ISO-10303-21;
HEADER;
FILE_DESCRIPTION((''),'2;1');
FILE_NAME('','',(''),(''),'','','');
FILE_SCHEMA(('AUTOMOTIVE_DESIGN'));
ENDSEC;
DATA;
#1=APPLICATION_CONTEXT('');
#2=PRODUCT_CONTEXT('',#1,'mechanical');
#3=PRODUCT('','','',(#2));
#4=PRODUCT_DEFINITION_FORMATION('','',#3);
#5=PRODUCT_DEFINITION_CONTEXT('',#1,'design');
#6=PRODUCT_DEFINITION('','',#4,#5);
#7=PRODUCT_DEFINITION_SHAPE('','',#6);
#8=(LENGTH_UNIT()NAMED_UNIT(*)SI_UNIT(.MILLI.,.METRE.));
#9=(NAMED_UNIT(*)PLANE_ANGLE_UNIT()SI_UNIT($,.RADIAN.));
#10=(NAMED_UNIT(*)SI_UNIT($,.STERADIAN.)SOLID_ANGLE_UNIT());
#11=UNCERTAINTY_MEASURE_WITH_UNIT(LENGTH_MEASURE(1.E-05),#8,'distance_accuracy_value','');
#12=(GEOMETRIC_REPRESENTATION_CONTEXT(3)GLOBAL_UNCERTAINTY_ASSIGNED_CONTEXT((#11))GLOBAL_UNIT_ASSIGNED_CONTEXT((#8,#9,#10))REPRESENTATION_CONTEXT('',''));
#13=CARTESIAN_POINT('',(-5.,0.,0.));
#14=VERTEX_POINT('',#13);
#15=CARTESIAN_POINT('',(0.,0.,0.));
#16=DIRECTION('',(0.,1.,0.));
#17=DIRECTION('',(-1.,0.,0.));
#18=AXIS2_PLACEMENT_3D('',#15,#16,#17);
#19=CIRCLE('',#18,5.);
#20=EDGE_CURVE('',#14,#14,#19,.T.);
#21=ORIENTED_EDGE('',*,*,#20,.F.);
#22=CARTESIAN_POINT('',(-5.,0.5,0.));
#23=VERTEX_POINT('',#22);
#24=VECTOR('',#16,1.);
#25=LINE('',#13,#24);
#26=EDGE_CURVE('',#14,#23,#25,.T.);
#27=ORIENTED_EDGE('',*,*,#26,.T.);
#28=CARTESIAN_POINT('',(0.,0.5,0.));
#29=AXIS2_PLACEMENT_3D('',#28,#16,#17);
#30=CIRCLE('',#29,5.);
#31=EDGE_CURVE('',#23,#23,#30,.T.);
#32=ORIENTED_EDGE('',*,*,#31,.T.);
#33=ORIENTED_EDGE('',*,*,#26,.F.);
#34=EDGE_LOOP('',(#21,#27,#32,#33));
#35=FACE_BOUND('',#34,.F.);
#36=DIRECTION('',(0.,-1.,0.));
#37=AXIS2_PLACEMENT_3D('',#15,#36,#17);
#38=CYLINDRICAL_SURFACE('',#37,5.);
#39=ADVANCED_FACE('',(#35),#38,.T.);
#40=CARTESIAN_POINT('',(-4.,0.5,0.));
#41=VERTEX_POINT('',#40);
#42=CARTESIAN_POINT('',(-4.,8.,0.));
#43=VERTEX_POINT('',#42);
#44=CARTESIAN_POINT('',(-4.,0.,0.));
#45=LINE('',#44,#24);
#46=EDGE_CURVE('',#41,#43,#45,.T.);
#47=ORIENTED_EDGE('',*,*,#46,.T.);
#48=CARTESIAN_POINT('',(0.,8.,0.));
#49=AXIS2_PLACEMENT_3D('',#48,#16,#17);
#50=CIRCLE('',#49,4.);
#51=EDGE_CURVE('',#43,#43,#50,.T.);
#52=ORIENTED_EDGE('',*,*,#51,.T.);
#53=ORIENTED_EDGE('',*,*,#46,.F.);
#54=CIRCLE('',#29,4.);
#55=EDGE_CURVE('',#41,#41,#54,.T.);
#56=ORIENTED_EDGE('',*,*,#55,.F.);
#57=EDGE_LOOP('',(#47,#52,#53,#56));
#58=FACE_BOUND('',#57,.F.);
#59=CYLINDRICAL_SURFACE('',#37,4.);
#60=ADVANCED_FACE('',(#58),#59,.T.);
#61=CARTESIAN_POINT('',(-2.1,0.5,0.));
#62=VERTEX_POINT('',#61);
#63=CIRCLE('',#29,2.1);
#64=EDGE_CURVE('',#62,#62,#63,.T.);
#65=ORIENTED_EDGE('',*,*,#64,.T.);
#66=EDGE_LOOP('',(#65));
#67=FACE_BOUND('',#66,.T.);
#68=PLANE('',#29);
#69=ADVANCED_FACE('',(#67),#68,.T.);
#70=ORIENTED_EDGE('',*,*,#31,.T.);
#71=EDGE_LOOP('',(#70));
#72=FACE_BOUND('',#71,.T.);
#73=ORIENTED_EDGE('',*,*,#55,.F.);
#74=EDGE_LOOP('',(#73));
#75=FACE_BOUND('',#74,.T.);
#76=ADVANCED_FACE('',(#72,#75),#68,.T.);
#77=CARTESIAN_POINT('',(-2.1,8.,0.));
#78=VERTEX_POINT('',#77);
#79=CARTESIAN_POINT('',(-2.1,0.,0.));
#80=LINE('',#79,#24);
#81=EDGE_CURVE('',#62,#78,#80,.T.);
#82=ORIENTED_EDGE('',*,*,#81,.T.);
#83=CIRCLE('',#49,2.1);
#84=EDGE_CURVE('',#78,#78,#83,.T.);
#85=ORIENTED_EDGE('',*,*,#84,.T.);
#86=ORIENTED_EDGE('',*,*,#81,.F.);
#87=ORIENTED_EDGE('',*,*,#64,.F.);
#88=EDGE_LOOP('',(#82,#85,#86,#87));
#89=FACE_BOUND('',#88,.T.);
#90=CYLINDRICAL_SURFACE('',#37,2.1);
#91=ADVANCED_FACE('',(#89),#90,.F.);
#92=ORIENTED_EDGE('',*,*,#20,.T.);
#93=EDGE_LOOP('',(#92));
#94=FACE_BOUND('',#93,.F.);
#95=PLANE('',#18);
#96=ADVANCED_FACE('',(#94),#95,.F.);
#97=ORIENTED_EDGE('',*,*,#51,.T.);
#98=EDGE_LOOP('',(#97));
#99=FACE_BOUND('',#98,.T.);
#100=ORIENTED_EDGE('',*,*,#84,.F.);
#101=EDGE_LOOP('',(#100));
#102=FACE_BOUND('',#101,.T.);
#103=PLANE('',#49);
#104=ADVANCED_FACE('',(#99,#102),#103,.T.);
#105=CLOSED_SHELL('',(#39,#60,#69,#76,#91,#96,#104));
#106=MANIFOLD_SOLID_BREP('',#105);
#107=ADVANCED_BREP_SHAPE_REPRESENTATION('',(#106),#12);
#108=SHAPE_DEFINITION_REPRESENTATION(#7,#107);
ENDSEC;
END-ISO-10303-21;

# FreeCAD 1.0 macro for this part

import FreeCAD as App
import Part
import Sketcher
Q = App.Units.Quantity

doc = App.newDocument("Part")
params = doc.addObject("Spreadsheet::Sheet", "Params")
for row, (alias, value) in enumerate([
    ("sketch1_diameter", "8 mm"),
    ("sketch1_diameter2", "4.2 mm"),
    ("pad1_length", "8 mm"),
    ("sketch2_diameter", "10 mm"),
    ("sketch2_diameter2", "8 mm"),
    ("sketch2_diameter3", "4.2 mm"),
    ("pad2_length", "0.5 mm"),
], start=1):
    params.set(f"A{row}", alias)
    params.set(f"B{row}", "=" + value)
    params.setAlias(f"B{row}", alias)

body = doc.addObject("PartDesign::Body", "Body")

# Sketch on XZ plane
sketch1 = body.newObject("Sketcher::SketchObject", "Sketch")
sketch1.AttachmentSupport = (doc.getObject("XZ_Plane"), [""])
sketch1.MapMode = "FlatFace"
sketch1.addGeometry([
    Part.Circle(App.Vector(0, 0, 0), App.Vector(0, 0, 1), 4),
    Part.Circle(App.Vector(0, 0, 0), App.Vector(0, 0, 1), 2.1),
], False)
sketch1.addConstraint([
    Sketcher.Constraint("Coincident", 0, 3, -1, 1),
    Sketcher.Constraint("Coincident", 1, 3, -1, 1),
    Sketcher.Constraint("Diameter", 0, Q("8 mm")),
    Sketcher.Constraint("Diameter", 1, Q("4.2 mm")),
])
sketch1.setExpression("Constraints[2]", "Params.sketch1_diameter")
sketch1.setExpression("Constraints[3]", "Params.sketch1_diameter2")
pad1 = body.newObject("PartDesign::Pad", "Pad")
pad1.Profile = sketch1
pad1.setExpression("Length", "Params.pad1_length")
pad1.Reversed = True

# Sketch on XZ plane
sketch2 = body.newObject("Sketcher::SketchObject", "Sketch001")
sketch2.AttachmentSupport = (doc.getObject("XZ_Plane"), [""])
sketch2.MapMode = "FlatFace"
sketch2.addGeometry([
    Part.Circle(App.Vector(0, 0, 0), App.Vector(0, 0, 1), 2.1),
    Part.Circle(App.Vector(0, 0, 0), App.Vector(0, 0, 1), 5),
    Part.Circle(App.Vector(0, 0, 0), App.Vector(0, 0, 1), 4),
], False)
sketch2.addConstraint([
    Sketcher.Constraint("Coincident", 0, 3, -1, 1),
    Sketcher.Constraint("Coincident", 1, 3, -1, 1),
    Sketcher.Constraint("Coincident", 2, 3, -1, 1),
    Sketcher.Constraint("Diameter", 1, Q("10 mm")),
    Sketcher.Constraint("Diameter", 2, Q("8 mm")),
    Sketcher.Constraint("Diameter", 0, Q("4.2 mm")),
])
sketch2.setExpression("Constraints[3]", "Params.sketch2_diameter")
sketch2.setExpression("Constraints[4]", "Params.sketch2_diameter2")
sketch2.setExpression("Constraints[5]", "Params.sketch2_diameter3")
pad2 = body.newObject("PartDesign::Pad", "Pad001")
pad2.Profile = sketch2
pad2.setExpression("Length", "Params.pad2_length")
pad2.Reversed = True

doc.recompute()
